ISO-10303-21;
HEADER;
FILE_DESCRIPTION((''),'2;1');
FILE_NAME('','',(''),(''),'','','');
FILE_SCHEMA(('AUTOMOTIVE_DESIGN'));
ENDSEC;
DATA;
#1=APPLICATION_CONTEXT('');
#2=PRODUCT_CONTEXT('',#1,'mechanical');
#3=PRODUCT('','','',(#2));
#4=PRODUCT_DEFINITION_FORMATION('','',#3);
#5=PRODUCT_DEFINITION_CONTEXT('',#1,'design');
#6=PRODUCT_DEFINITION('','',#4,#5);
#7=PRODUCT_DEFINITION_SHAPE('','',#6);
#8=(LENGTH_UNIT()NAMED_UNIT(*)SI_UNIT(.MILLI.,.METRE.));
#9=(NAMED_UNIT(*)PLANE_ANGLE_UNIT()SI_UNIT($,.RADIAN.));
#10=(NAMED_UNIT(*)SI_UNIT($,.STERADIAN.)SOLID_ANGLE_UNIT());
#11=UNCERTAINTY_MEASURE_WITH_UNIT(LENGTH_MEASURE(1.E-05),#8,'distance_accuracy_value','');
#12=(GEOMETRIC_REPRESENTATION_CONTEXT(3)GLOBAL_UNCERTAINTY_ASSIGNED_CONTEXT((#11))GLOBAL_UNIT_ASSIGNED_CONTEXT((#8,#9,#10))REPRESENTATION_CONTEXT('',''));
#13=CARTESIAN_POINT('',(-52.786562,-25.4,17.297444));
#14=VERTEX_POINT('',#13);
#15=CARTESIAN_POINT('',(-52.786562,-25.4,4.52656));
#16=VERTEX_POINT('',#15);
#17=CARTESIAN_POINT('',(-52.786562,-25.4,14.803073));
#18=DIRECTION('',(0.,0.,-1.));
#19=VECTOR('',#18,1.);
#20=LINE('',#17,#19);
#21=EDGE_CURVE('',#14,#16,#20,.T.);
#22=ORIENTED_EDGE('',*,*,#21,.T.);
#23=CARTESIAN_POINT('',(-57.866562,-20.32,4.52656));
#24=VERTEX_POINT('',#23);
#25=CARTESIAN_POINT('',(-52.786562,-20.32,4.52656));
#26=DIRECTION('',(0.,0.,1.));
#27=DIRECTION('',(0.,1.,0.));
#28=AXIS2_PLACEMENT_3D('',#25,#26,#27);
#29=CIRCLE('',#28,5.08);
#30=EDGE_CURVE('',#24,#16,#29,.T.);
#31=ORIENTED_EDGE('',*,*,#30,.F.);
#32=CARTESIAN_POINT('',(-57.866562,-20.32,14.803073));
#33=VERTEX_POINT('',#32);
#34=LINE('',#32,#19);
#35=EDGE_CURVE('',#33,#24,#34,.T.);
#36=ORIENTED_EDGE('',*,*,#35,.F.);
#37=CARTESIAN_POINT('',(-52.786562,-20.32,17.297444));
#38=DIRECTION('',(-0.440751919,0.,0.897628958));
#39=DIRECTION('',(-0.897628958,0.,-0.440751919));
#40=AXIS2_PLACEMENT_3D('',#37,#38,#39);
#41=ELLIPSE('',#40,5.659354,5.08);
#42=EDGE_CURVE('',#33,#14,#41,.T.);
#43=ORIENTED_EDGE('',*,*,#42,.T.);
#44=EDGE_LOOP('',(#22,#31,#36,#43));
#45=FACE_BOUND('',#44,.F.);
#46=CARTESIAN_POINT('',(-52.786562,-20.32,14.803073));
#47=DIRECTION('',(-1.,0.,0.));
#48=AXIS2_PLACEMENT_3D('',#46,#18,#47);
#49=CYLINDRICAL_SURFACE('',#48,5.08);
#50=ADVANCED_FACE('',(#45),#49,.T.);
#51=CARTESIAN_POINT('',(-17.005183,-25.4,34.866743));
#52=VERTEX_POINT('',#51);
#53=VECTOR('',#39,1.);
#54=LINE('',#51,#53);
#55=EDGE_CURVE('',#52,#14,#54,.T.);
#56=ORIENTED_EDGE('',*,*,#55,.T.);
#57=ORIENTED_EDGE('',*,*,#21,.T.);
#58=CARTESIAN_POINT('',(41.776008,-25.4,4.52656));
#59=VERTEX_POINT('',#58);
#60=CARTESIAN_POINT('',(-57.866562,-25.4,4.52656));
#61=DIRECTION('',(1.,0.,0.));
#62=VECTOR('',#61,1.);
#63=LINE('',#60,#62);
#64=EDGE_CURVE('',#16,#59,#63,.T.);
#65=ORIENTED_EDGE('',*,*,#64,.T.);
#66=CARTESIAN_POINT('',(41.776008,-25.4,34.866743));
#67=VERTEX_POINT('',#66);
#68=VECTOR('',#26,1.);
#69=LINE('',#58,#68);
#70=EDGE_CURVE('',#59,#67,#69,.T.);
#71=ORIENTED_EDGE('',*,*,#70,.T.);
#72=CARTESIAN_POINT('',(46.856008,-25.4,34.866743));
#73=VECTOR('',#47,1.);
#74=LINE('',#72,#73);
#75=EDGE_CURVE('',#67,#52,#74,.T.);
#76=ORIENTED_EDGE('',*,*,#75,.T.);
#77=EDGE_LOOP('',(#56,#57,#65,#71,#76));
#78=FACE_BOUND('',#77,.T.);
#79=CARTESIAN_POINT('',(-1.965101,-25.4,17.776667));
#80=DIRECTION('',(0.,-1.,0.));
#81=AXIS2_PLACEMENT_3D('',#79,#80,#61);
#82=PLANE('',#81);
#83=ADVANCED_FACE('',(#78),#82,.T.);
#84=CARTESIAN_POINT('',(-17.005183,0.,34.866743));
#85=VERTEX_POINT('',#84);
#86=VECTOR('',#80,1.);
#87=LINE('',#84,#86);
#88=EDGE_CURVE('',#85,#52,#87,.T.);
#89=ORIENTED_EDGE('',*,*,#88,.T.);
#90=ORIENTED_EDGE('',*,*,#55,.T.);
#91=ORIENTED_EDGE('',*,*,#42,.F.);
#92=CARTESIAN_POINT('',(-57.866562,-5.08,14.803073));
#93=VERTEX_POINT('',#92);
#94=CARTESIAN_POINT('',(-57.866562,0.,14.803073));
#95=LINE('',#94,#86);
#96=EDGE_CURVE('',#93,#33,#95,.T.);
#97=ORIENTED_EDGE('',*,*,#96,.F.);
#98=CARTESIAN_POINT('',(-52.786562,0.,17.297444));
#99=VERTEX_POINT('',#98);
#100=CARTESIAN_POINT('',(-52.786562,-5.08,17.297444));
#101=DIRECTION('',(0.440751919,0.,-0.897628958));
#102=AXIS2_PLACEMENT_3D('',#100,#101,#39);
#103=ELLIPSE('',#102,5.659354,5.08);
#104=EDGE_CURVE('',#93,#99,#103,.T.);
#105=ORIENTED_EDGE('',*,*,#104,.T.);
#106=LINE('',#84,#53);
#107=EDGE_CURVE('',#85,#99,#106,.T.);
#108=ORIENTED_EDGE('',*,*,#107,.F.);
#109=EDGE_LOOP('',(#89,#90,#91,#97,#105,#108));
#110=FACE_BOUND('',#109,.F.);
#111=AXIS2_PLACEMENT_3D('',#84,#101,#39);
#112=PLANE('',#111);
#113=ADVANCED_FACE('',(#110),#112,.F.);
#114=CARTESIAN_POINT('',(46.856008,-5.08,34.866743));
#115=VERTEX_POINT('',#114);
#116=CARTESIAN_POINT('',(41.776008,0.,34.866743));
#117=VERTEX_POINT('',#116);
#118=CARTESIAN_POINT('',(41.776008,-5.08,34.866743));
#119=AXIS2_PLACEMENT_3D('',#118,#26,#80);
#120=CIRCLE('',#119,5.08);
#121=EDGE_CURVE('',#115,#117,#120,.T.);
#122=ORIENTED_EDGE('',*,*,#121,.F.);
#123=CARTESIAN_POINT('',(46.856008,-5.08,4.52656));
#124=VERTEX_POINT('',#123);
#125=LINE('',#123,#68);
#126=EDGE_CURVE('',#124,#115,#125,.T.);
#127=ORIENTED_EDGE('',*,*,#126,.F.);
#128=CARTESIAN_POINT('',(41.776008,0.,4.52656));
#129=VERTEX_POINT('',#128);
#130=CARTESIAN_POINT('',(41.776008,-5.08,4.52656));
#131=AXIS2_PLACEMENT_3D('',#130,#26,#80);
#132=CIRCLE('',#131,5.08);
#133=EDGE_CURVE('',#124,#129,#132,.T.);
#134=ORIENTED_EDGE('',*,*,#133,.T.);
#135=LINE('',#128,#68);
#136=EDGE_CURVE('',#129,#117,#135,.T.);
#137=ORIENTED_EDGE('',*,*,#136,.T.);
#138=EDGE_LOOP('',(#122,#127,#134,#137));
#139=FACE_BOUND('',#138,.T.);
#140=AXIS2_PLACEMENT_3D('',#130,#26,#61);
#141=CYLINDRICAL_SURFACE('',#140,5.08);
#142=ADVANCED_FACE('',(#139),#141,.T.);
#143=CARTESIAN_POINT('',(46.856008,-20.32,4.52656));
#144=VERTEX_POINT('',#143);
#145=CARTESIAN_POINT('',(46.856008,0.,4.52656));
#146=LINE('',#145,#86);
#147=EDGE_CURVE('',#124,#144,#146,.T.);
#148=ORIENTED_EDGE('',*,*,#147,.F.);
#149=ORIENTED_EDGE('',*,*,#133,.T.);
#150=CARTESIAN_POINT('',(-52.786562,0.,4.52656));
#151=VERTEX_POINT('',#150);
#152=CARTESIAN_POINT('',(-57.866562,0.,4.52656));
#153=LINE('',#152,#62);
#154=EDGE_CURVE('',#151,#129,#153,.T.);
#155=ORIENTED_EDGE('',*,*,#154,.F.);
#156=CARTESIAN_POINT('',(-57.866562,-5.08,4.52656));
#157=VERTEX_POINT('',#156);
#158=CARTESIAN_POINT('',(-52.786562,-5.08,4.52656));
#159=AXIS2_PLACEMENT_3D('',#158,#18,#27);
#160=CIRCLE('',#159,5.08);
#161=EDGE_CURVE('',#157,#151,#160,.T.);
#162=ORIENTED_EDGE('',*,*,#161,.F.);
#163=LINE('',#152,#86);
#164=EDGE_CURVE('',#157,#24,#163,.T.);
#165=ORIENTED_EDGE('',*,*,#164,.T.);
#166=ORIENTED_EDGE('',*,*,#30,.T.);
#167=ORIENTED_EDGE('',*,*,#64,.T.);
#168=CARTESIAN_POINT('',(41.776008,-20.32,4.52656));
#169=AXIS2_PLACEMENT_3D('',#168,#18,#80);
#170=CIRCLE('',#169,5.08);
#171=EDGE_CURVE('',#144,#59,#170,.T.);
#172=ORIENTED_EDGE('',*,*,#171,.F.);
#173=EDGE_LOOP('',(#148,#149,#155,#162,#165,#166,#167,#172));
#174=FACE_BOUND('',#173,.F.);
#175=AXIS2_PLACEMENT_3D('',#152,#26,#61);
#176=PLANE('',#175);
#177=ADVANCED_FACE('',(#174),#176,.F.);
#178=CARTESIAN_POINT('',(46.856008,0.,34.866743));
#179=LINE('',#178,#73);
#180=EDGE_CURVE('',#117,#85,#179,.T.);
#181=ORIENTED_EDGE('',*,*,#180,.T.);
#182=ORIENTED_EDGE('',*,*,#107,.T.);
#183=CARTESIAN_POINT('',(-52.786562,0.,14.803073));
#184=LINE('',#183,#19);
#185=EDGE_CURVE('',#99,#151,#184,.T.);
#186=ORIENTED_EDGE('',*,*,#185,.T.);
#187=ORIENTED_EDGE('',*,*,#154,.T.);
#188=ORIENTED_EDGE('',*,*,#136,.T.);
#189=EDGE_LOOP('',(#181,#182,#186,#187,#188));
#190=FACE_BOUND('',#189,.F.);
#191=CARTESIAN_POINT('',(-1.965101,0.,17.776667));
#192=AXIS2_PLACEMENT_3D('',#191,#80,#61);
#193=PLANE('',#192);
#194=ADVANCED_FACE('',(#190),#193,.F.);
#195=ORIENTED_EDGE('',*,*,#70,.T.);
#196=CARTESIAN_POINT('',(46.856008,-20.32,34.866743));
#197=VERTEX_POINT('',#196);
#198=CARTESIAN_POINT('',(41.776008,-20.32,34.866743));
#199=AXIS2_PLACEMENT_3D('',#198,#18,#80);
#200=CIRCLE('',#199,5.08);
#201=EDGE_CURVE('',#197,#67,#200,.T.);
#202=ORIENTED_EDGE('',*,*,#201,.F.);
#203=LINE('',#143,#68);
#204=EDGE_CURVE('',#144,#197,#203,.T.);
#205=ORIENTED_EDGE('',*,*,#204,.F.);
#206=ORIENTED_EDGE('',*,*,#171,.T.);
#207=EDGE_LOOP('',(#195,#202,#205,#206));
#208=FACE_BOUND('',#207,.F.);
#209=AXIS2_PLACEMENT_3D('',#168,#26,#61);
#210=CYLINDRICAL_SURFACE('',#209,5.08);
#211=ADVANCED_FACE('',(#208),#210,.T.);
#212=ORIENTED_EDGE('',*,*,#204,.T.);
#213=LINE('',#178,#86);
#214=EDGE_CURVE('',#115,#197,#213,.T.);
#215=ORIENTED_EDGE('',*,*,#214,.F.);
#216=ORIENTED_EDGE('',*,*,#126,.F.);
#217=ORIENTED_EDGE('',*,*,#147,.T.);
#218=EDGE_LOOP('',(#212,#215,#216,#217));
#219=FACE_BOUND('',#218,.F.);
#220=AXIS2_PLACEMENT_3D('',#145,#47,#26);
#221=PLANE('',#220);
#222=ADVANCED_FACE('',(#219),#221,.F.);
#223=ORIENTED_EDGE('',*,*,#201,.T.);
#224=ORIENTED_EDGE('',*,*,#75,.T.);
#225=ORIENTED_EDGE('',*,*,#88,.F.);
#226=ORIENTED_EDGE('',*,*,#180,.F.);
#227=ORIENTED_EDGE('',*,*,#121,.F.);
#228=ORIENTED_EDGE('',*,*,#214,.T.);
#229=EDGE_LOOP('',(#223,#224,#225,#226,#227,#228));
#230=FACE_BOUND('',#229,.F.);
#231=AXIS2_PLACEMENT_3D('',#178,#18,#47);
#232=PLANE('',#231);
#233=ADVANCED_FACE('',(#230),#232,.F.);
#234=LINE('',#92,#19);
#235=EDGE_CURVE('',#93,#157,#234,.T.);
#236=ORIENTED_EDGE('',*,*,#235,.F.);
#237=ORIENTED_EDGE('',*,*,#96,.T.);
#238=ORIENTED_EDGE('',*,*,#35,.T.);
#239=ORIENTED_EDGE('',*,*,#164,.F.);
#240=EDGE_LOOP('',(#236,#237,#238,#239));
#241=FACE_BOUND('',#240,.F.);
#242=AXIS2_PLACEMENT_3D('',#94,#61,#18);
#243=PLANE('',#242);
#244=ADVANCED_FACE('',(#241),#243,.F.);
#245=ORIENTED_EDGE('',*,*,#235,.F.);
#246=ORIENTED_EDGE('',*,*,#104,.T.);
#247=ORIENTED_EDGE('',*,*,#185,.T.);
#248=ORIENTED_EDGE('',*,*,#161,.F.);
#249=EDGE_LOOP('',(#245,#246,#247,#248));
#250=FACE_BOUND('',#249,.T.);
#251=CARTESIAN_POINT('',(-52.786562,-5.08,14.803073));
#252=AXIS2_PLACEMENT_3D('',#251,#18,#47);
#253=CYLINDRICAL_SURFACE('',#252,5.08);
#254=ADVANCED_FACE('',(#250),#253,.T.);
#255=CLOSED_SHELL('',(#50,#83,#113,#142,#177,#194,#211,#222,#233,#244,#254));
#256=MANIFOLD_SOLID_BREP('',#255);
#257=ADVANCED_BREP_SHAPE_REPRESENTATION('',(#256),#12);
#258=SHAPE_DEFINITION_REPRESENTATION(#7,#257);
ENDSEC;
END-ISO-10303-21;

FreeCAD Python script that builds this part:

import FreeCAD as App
import Part
import Sketcher

V = App.Vector
Q = App.Units.Quantity


def edges_at(feature, points):
    """Names of the edges that pass closest to the given points."""
    edges = feature.Shape.Edges
    near = lambda p: min(range(len(edges)), key=lambda i: edges[i].distToShape(Part.Vertex(*p))[0])
    return sorted({f"Edge{near(p) + 1}" for p in points})

doc = App.newDocument("Part")
body = doc.addObject("PartDesign::Body", "Body")

# Sketch on XZ plane
sketch1 = body.newObject("Sketcher::SketchObject", "Sketch")
sketch1.AttachmentSupport = (doc.getObject("XZ_Plane"), [""])
sketch1.MapMode = "FlatFace"
sketch1.addGeometry([
    Part.LineSegment(V(-17, 35, 0), V(-58, 15, 0)),  # 0
    Part.LineSegment(V(-58, 15, 0), V(-58, 5, 0)),  # 1
    Part.LineSegment(V(-58, 5, 0), V(47, 5, 0)),  # 2
    Part.LineSegment(V(47, 5, 0), V(47, 35, 0)),  # 3
    Part.LineSegment(V(47, 35, 0), V(-17, 35, 0)),  # 4
], False)
sketch1.addConstraint([
    Sketcher.Constraint("Coincident", 0, 2, 1, 1),
    Sketcher.Constraint("Coincident", 1, 2, 2, 1),
    Sketcher.Constraint("Coincident", 2, 2, 3, 1),
    Sketcher.Constraint("Coincident", 3, 2, 4, 1),
    Sketcher.Constraint("Coincident", 4, 2, 0, 1),
    Sketcher.Constraint("Vertical", 1),
    Sketcher.Constraint("Horizontal", 2),
    Sketcher.Constraint("Vertical", 3),
    Sketcher.Constraint("Horizontal", 4),
    Sketcher.Constraint("DistanceX", 2, 1, 2, 2, 104.72257),
    Sketcher.Constraint("DistanceX", 4, 2, 4, 1, 63.861191),
    Sketcher.Constraint("Distance", 0, 45.521458),
    Sketcher.Constraint("DistanceY", 1, 2, 1, 1, 10.276513),
    Sketcher.Constraint("DistanceY", -1, 1, 1, 2, 4.52656),
    Sketcher.Constraint("DistanceX", -1, 1, 2, 2, 46.856008),
])
pad1 = body.newObject("PartDesign::Pad", "Pad")
pad1.Profile = sketch1
pad1.Length = Q("1 in")
doc.recompute()

fillet = body.newObject("PartDesign::Fillet", "Fillet")
fillet.Base = (pad1, edges_at(pad1, [
    (-57.867, -25.4, 9.665),
    (-57.867, 0, 9.665),
    (46.856, -25.4, 19.697),
    (46.856, 0, 19.697),
]))
fillet.Radius = Q("0.2 in")

doc.recompute()
